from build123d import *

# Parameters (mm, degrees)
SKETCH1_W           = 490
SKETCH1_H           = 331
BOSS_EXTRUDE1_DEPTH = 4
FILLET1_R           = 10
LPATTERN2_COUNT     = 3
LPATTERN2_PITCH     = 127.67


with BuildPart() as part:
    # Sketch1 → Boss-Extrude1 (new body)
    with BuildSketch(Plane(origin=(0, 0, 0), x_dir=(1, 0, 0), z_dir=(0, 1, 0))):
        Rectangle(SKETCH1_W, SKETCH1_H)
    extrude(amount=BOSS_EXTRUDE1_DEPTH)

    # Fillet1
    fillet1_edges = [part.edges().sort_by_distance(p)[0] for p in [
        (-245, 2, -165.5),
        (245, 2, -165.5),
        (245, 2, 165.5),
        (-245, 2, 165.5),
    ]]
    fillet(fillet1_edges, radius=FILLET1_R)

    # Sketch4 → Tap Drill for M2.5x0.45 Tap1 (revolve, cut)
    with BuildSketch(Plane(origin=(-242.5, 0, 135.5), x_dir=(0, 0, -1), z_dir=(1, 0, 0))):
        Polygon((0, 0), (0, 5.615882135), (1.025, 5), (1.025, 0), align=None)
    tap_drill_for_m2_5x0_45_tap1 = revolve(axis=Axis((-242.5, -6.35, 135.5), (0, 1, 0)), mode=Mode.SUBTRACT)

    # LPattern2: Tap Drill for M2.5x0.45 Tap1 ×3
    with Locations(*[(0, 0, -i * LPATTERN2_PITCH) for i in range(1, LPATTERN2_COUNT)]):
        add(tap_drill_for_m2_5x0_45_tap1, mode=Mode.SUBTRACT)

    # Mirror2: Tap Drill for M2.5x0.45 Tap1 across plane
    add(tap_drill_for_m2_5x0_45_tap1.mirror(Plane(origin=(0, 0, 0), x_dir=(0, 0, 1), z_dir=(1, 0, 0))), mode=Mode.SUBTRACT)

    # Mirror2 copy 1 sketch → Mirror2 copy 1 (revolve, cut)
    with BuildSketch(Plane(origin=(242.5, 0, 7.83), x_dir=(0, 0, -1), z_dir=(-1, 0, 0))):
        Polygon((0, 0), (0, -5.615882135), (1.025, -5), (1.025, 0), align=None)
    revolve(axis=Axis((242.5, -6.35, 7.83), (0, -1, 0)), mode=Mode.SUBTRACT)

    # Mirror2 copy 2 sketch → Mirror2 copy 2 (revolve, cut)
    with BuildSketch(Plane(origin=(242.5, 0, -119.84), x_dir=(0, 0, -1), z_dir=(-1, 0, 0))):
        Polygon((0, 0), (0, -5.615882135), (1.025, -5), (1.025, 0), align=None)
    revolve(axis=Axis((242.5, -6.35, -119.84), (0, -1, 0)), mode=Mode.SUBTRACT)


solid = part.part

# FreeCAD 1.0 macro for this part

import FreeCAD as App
import Part
import Sketcher
Q = App.Units.Quantity


def edges_at(feature, points):
    """Names of the edges that pass closest to the given points."""
    edges = feature.Shape.Edges
    near = lambda p: min(range(len(edges)), key=lambda i: edges[i].distToShape(Part.Vertex(*p))[0])
    return sorted({f"Edge{near(p) + 1}" for p in points})


def add_polygon(sketch, points):
    """Adds a closed chain of lines whose ends are joined by coincident constraints."""
    first, n = sketch.GeometryCount, len(points)
    for a, b in zip(points, points[1:] + points[:1]):
        sketch.addGeometry(Part.LineSegment(App.Vector(*a, 0), App.Vector(*b, 0)), False)
    for i in range(n):
        sketch.addConstraint(Sketcher.Constraint("Coincident", first + i, 2, first + (i + 1) % n, 1))

doc = App.newDocument("Part")
params = doc.addObject("Spreadsheet::Sheet", "Params")
for row, (alias, value) in enumerate([
    ("sketch1_width", "490 mm"),
    ("sketch1_height", "331 mm"),
    ("pad1_length", "4 mm"),
    ("fillet_radius", "10 mm"),
    ("sketch2_width", "5 mm"),
    ("groove_angle", "360 deg"),
    ("linearpattern_pitch", "127.67 mm"),
    ("sketch3_width", "5 mm"),
    ("groove2_angle", "360 deg"),
    ("sketch4_width", "5 mm"),
    ("groove3_angle", "360 deg"),
], start=1):
    params.set(f"A{row}", alias)
    params.set(f"B{row}", "=" + value)
    params.setAlias(f"B{row}", alias)

body = doc.addObject("PartDesign::Body", "Body")

# Sketch on XZ plane
sketch1 = doc.addObject("Sketcher::SketchObject", "Sketch")
body.addObject(sketch1)
sketch1.AttachmentSupport = (doc.XZ_Plane, [""])
sketch1.MapMode = "FlatFace"
add_polygon(sketch1, [(-245, -166), (-245, 166), (245, 166), (245, -166)])  # lines 0-3
sketch1.addConstraint([
    Sketcher.Constraint("Vertical", 0),
    Sketcher.Constraint("Horizontal", 1),
    Sketcher.Constraint("Vertical", 2),
    Sketcher.Constraint("Horizontal", 3),
    Sketcher.Constraint("Symmetric", 0, 2, 2, 2, -1, 1),
    Sketcher.Constraint("DistanceX", 1, 1, 1, 2, 490.0),
    Sketcher.Constraint("DistanceY", 0, 1, 0, 2, 331.0),
])
sketch1.setExpression("Constraints[9]", "Params.sketch1_width")
sketch1.setExpression("Constraints[10]", "Params.sketch1_height")
pad1 = doc.addObject("PartDesign::Pad", "Pad")
body.addObject(pad1)
pad1.Profile = sketch1
pad1.setExpression("Length", "Params.pad1_length")
pad1.Reversed = True
doc.recompute()

fillet = doc.addObject("PartDesign::Fillet", "Fillet")
body.addObject(fillet)
fillet.Base = (pad1, edges_at(pad1, [
    (-245, 2, -165.5),
    (245, 2, -165.5),
    (245, 2, 165.5),
    (-245, 2, 165.5),
]))
fillet.setExpression("Radius", "Params.fillet_radius")

# Sketch on YZ plane
sketch2 = doc.addObject("Sketcher::SketchObject", "Sketch001")
body.addObject(sketch2)
sketch2.AttachmentSupport = (doc.YZ_Plane, [""])
sketch2.MapMode = "FlatFace"
sketch2.AttachmentOffset = App.Placement(App.Vector(0, 0, -242.5), App.Rotation())
add_polygon(sketch2, [(5.6, 135.5), (0, 135.5), (0, 134.5), (5, 134.5)])  # lines 0-3
sketch2.addGeometry(Part.LineSegment(App.Vector(0, 135.5, 0), App.Vector(5.6, 135.5, 0)), True)  # axis
sketch2.addConstraint([
    Sketcher.Constraint("Horizontal", 0),
    Sketcher.Constraint("Vertical", 1),
    Sketcher.Constraint("Horizontal", 2),
    Sketcher.Constraint("Horizontal", 4),
    Sketcher.Constraint("Coincident", 4, 1, 0, 2),
    Sketcher.Constraint("PointOnObject", 0, 2, -2),
    Sketcher.Constraint("Equal", 0, 4),
    Sketcher.Constraint("DistanceX", 2, 1, 2, 2, 5.0),
    Sketcher.Constraint("Angle", 3, Q("59 deg")),
    Sketcher.Constraint("DistanceY", -1, 1, 0, 2, 135.5),
    Sketcher.Constraint("DistanceY", 1, 2, 1, 1, 1.025),
])
sketch2.setExpression("Constraints[11]", "Params.sketch2_width")
groove = doc.addObject("PartDesign::Groove", "Groove")
body.addObject(groove)
groove.Profile = sketch2
groove.ReferenceAxis = (sketch2, ["Axis0"])
groove.setExpression("Angle", "Params.groove_angle")
doc.recompute()

linearpattern = doc.addObject("PartDesign::LinearPattern", "LinearPattern")
body.addObject(linearpattern)
linearpattern.Originals = [groove]
linearpattern.Direction = (doc.Z_Axis, [""])
linearpattern.Mode = "offset"
linearpattern.setExpression("Offset", "Params.linearpattern_pitch")
linearpattern.Occurrences = 3
linearpattern.Reversed = True
body.Tip = linearpattern
doc.recompute()

mirrored = doc.addObject("PartDesign::Mirrored", "Mirrored")
body.addObject(mirrored)
mirrored.Originals = [groove]
mirrored.MirrorPlane = (doc.YZ_Plane, [""])
body.Tip = mirrored

# Sketch on YZ plane
sketch3 = doc.addObject("Sketcher::SketchObject", "Sketch002")
body.addObject(sketch3)
sketch3.AttachmentSupport = (doc.YZ_Plane, [""])
sketch3.MapMode = "FlatFace"
sketch3.AttachmentOffset = App.Placement(App.Vector(0, 0, 242.5), App.Rotation())
add_polygon(sketch3, [(0, 7.8), (5.6, 7.8), (5, 6.8), (0, 6.8)])  # lines 0-3
sketch3.addGeometry(Part.LineSegment(App.Vector(5.6, 7.8, 0), App.Vector(0, 7.8, 0)), True)  # axis
sketch3.addConstraint([
    Sketcher.Constraint("Horizontal", 0),
    Sketcher.Constraint("Horizontal", 2),
    Sketcher.Constraint("Vertical", 3),
    Sketcher.Constraint("Horizontal", 4),
    Sketcher.Constraint("Coincident", 4, 1, 0, 2),
    Sketcher.Constraint("PointOnObject", 2, 2, -2),
    Sketcher.Constraint("PointOnObject", 4, 2, -2),
    Sketcher.Constraint("DistanceX", 2, 2, 2, 1, 5.0),
    Sketcher.Constraint("Angle", 1, Q("-121 deg")),
    Sketcher.Constraint("DistanceY", 3, 1, 3, 2, 1.025),
    Sketcher.Constraint("DistanceY", -1, 1, 0, 2, 7.83),
])
sketch3.setExpression("Constraints[11]", "Params.sketch3_width")
groove2 = doc.addObject("PartDesign::Groove", "Groove001")
body.addObject(groove2)
groove2.Profile = sketch3
groove2.ReferenceAxis = (sketch3, ["Axis0"])
groove2.setExpression("Angle", "Params.groove2_angle")

# Sketch on YZ plane
sketch4 = doc.addObject("Sketcher::SketchObject", "Sketch003")
body.addObject(sketch4)
sketch4.AttachmentSupport = (doc.YZ_Plane, [""])
sketch4.MapMode = "FlatFace"
sketch4.AttachmentOffset = App.Placement(App.Vector(0, 0, 242.5), App.Rotation())
add_polygon(sketch4, [(0, -119.8), (5.6, -119.8), (5, -120.9), (0, -120.9)])  # lines 0-3
sketch4.addGeometry(Part.LineSegment(App.Vector(5.6, -119.8, 0), App.Vector(0, -119.8, 0)), True)  # axis
sketch4.addConstraint([
    Sketcher.Constraint("Horizontal", 0),
    Sketcher.Constraint("Horizontal", 2),
    Sketcher.Constraint("Vertical", 3),
    Sketcher.Constraint("Horizontal", 4),
    Sketcher.Constraint("Coincident", 4, 1, 0, 2),
    Sketcher.Constraint("PointOnObject", 2, 2, -2),
    Sketcher.Constraint("PointOnObject", 4, 2, -2),
    Sketcher.Constraint("DistanceX", 2, 2, 2, 1, 5.0),
    Sketcher.Constraint("Angle", 1, Q("-121 deg")),
    Sketcher.Constraint("DistanceY", 3, 1, 3, 2, 1.025),
    Sketcher.Constraint("DistanceY", 0, 2, -1, 1, 119.84),
])
sketch4.setExpression("Constraints[11]", "Params.sketch4_width")
groove3 = doc.addObject("PartDesign::Groove", "Groove002")
body.addObject(groove3)
groove3.Profile = sketch4
groove3.ReferenceAxis = (sketch4, ["Axis0"])
groove3.setExpression("Angle", "Params.groove3_angle")

doc.recompute()
